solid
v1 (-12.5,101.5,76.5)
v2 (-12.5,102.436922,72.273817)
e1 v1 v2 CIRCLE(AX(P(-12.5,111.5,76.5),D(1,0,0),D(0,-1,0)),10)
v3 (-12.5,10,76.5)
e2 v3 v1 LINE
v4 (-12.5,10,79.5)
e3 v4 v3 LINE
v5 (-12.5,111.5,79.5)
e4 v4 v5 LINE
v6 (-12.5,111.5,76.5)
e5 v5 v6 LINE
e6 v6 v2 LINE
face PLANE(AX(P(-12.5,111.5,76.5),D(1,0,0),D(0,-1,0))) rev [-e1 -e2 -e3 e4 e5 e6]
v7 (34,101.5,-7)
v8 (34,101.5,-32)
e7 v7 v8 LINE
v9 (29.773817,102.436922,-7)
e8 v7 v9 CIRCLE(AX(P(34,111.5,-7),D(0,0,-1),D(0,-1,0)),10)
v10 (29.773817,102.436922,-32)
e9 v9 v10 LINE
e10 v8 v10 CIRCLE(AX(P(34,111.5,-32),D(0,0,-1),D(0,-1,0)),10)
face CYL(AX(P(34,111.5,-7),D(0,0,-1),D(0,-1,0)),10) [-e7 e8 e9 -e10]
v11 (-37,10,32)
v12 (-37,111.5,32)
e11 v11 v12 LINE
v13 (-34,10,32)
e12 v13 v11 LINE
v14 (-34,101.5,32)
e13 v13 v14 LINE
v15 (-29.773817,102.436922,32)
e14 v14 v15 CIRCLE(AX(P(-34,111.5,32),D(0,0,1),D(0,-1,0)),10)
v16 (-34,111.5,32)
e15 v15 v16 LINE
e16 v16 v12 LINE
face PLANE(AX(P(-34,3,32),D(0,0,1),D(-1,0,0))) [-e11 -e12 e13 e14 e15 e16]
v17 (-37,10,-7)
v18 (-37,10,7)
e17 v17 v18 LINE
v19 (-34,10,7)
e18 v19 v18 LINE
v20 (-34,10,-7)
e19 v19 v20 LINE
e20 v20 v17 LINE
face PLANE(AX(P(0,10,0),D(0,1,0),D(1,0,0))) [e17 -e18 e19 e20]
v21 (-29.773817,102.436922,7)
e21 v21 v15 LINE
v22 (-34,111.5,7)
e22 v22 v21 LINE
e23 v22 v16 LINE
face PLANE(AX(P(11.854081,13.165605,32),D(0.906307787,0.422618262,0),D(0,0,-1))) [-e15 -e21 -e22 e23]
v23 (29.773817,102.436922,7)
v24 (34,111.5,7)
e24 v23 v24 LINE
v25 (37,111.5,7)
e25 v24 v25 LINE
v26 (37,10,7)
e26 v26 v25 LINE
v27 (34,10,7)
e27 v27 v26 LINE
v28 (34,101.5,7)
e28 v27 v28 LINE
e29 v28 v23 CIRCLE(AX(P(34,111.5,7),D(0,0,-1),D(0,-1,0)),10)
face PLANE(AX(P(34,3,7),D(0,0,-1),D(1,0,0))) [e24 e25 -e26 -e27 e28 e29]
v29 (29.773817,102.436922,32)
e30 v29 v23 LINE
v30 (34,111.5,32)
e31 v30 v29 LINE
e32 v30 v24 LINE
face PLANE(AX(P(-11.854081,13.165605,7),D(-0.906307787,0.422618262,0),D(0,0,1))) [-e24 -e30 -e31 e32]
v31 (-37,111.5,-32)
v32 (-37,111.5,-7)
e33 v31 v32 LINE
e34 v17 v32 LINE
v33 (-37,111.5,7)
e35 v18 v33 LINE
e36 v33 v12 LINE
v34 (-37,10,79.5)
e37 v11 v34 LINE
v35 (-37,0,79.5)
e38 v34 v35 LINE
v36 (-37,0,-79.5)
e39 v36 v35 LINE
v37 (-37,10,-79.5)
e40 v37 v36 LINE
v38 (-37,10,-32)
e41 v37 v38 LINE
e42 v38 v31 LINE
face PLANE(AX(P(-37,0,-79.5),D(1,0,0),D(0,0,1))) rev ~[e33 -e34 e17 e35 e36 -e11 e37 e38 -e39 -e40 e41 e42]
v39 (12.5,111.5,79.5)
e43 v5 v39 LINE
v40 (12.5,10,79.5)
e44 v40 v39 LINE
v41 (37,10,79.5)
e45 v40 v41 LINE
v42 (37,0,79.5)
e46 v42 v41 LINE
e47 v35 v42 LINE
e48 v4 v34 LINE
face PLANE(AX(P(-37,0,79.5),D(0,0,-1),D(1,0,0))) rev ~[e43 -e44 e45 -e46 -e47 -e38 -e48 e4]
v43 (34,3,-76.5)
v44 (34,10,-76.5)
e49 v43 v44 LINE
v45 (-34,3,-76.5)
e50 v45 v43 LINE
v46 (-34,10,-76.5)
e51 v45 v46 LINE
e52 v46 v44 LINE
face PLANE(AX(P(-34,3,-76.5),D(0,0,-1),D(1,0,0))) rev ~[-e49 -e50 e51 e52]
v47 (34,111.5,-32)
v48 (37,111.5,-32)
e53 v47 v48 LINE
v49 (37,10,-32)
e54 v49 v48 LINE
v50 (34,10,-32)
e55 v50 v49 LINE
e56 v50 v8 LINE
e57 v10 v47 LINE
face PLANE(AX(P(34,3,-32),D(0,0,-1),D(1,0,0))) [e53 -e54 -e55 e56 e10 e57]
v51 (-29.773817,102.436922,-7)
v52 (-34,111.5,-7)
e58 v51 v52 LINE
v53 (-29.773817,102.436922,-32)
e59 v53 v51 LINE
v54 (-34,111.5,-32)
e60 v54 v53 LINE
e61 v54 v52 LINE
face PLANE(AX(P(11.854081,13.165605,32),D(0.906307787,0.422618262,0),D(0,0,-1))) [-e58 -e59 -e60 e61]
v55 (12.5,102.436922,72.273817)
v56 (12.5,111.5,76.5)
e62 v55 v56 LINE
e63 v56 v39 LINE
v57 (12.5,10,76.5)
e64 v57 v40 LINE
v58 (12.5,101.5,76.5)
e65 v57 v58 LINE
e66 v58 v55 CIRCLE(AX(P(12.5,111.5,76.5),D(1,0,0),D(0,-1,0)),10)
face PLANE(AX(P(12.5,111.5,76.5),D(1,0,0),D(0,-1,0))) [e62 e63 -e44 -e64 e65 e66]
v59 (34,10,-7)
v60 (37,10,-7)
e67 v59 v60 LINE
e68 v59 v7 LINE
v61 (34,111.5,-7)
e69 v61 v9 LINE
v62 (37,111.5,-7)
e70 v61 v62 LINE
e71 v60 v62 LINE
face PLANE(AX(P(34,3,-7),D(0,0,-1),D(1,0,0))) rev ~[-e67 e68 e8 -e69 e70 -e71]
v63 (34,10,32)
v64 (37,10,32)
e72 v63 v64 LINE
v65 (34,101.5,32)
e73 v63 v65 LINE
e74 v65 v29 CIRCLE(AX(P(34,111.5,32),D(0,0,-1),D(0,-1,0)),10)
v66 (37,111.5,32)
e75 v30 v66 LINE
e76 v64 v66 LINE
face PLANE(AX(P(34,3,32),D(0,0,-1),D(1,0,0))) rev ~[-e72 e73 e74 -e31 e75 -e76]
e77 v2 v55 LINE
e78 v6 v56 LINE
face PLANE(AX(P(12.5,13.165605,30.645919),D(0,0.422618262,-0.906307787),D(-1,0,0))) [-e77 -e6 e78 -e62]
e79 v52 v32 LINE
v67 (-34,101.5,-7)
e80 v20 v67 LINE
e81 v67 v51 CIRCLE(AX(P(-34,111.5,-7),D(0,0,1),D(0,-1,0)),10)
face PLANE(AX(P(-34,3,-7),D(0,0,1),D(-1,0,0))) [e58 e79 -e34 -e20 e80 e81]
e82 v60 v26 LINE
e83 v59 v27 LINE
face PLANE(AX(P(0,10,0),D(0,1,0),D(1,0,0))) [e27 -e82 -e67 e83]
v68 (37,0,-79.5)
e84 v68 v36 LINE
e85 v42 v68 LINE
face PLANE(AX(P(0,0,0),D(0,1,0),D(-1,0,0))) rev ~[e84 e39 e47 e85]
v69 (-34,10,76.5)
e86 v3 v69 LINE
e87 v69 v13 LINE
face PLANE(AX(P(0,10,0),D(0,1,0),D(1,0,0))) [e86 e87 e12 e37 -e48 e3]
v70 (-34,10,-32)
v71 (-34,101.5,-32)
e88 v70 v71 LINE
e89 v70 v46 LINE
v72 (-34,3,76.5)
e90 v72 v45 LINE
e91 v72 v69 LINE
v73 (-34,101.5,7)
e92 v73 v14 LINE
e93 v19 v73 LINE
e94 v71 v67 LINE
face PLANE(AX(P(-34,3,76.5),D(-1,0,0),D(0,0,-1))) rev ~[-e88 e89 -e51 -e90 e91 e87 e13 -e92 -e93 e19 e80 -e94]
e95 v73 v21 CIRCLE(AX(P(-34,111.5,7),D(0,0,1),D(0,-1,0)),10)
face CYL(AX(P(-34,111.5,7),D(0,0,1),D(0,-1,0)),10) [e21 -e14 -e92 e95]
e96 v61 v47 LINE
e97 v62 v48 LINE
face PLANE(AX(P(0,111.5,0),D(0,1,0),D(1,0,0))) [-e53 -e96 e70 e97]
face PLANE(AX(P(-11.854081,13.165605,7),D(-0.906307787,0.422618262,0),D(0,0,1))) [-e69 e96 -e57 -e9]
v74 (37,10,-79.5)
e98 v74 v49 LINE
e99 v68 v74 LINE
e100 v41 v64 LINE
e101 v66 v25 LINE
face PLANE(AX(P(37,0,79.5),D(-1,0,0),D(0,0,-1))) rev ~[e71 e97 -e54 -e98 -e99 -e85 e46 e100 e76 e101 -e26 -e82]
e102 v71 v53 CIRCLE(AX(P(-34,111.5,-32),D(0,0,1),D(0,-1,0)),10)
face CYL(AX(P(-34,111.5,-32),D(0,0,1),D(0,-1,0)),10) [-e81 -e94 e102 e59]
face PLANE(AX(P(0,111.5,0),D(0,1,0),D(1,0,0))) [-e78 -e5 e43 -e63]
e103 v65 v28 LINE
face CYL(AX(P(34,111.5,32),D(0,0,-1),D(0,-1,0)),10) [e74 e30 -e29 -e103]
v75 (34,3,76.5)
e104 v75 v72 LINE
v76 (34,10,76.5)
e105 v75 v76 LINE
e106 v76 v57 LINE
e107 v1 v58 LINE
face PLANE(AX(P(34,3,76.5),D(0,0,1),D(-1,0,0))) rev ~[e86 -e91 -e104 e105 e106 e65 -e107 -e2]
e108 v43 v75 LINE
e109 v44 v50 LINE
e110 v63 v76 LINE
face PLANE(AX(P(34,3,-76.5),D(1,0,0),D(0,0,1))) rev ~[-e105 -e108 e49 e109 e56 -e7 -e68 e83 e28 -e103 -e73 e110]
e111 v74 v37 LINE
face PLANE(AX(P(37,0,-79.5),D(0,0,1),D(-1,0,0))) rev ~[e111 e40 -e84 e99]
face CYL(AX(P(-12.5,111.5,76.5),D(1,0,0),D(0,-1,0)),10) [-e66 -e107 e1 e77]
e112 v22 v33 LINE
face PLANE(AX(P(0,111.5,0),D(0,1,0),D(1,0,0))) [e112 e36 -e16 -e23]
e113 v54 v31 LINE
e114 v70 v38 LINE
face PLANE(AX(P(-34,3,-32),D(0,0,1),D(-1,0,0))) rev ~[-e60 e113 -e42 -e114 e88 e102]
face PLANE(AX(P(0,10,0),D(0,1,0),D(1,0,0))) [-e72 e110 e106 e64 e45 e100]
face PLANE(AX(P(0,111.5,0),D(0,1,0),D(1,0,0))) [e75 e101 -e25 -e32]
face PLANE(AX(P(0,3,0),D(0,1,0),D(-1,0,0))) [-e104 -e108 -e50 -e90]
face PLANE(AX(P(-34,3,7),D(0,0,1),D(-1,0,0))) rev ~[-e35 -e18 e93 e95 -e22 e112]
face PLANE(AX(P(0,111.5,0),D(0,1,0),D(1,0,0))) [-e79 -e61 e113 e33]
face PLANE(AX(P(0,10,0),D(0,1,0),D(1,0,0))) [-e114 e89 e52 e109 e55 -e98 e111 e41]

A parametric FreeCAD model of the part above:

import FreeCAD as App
import Part
import Sketcher
from FreeCAD import Vector

doc = App.newDocument("Part")
body = doc.addObject("PartDesign::Body", "Body")

# Sketch on XZ plane
sketch1 = body.newObject("Sketcher::SketchObject", "Sketch")
sketch1.AttachmentSupport = (doc.getObject("XZ_Plane"), [""])
sketch1.MapMode = "FlatFace"
sketch1.addGeometry([
    Part.LineSegment(Vector(37, 80, 0), Vector(37, -80, 0)),
    Part.LineSegment(Vector(37, -80, 0), Vector(-37, -80, 0)),
    Part.LineSegment(Vector(-37, -80, 0), Vector(-37, 80, 0)),
    Part.LineSegment(Vector(-37, 80, 0), Vector(37, 80, 0)),
], False)
sketch1.addConstraint([
    Sketcher.Constraint("Coincident", 0, 2, 1, 1),
    Sketcher.Constraint("Coincident", 1, 2, 2, 1),
    Sketcher.Constraint("Coincident", 2, 2, 3, 1),
    Sketcher.Constraint("Coincident", 3, 2, 0, 1),
    Sketcher.Constraint("Vertical", 0),
    Sketcher.Constraint("Horizontal", 1),
    Sketcher.Constraint("Vertical", 2),
    Sketcher.Constraint("Horizontal", 3),
    Sketcher.Constraint("Symmetric", 0, 2, 2, 2, -1, 1),
    Sketcher.Constraint("DistanceX", 1, 2, 1, 1, 74.0),
    Sketcher.Constraint("DistanceY", 0, 2, 0, 1, 159.0),
])
pad1 = body.newObject("PartDesign::Pad", "Pad")
pad1.Profile = sketch1
pad1.Length = 3
pad1.Reversed = True

# Sketch on XZ plane
sketch2 = body.newObject("Sketcher::SketchObject", "Sketch001")
sketch2.AttachmentSupport = (doc.getObject("XZ_Plane"), [""])
sketch2.MapMode = "FlatFace"
sketch2.AttachmentOffset = App.Placement(Vector(0, 0, -3), App.Rotation())
sketch2.addGeometry([
    Part.LineSegment(Vector(37, -32, 0), Vector(34, -32, 0)),  # 0
    Part.LineSegment(Vector(34, -32, 0), Vector(34, -7, 0)),  # 1
    Part.LineSegment(Vector(34, -7, 0), Vector(37, -7, 0)),  # 2
    Part.LineSegment(Vector(37, -7, 0), Vector(37, -32, 0)),  # 3
    Part.LineSegment(Vector(-34, -7, 0), Vector(-34, -32, 0)),  # 4
    Part.LineSegment(Vector(-34, -32, 0), Vector(-37, -32, 0)),  # 5
    Part.LineSegment(Vector(-37, -32, 0), Vector(-37, -7, 0)),  # 6
    Part.LineSegment(Vector(-37, -7, 0), Vector(-34, -7, 0)),  # 7
    Part.LineSegment(Vector(37, 7, 0), Vector(34, 7, 0)),  # 8
    Part.LineSegment(Vector(34, 7, 0), Vector(34, 32, 0)),  # 9
    Part.LineSegment(Vector(34, 32, 0), Vector(37, 32, 0)),  # 10
    Part.LineSegment(Vector(37, 32, 0), Vector(37, 7, 0)),  # 11
    Part.LineSegment(Vector(-34, 32, 0), Vector(-34, 7, 0)),  # 12
    Part.LineSegment(Vector(-34, 7, 0), Vector(-37, 7, 0)),  # 13
    Part.LineSegment(Vector(-37, 7, 0), Vector(-37, 32, 0)),  # 14
    Part.LineSegment(Vector(-37, 32, 0), Vector(-34, 32, 0)),  # 15
    Part.LineSegment(Vector(12.5, 79.5, 0), Vector(12.5, 76.5, 0)),  # 16
    Part.LineSegment(Vector(12.5, 76.5, 0), Vector(-12.5, 76.5, 0)),  # 17
    Part.LineSegment(Vector(-12.5, 76.5, 0), Vector(-12.5, 79.5, 0)),  # 18
    Part.LineSegment(Vector(-12.5, 79.5, 0), Vector(12.5, 79.5, 0)),  # 19
], False)
sketch2.addConstraint([
    Sketcher.Constraint("Coincident", 0, 2, 1, 1),
    Sketcher.Constraint("Coincident", 1, 2, 2, 1),
    Sketcher.Constraint("Coincident", 2, 2, 3, 1),
    Sketcher.Constraint("Coincident", 3, 2, 0, 1),
    Sketcher.Constraint("Coincident", 4, 2, 5, 1),
    Sketcher.Constraint("Coincident", 5, 2, 6, 1),
    Sketcher.Constraint("Coincident", 6, 2, 7, 1),
    Sketcher.Constraint("Coincident", 7, 2, 4, 1),
    Sketcher.Constraint("Coincident", 8, 2, 9, 1),
    Sketcher.Constraint("Coincident", 9, 2, 10, 1),
    Sketcher.Constraint("Coincident", 10, 2, 11, 1),
    Sketcher.Constraint("Coincident", 11, 2, 8, 1),
    Sketcher.Constraint("Coincident", 12, 2, 13, 1),
    Sketcher.Constraint("Coincident", 13, 2, 14, 1),
    Sketcher.Constraint("Coincident", 14, 2, 15, 1),
    Sketcher.Constraint("Coincident", 15, 2, 12, 1),
    Sketcher.Constraint("Coincident", 16, 2, 17, 1),
    Sketcher.Constraint("Coincident", 17, 2, 18, 1),
    Sketcher.Constraint("Coincident", 18, 2, 19, 1),
    Sketcher.Constraint("Coincident", 19, 2, 16, 1),
    Sketcher.Constraint("Horizontal", 0),
    Sketcher.Constraint("Vertical", 1),
    Sketcher.Constraint("Horizontal", 2),
    Sketcher.Constraint("Vertical", 3),
    Sketcher.Constraint("Vertical", 4),
    Sketcher.Constraint("Horizontal", 5),
    Sketcher.Constraint("Vertical", 6),
    Sketcher.Constraint("Horizontal", 7),
    Sketcher.Constraint("Horizontal", 8),
    Sketcher.Constraint("Vertical", 9),
    Sketcher.Constraint("Horizontal", 10),
    Sketcher.Constraint("Vertical", 11),
    Sketcher.Constraint("Vertical", 12),
    Sketcher.Constraint("Horizontal", 13),
    Sketcher.Constraint("Vertical", 14),
    Sketcher.Constraint("Horizontal", 15),
    Sketcher.Constraint("Vertical", 16),
    Sketcher.Constraint("Horizontal", 17),
    Sketcher.Constraint("Vertical", 18),
    Sketcher.Constraint("Horizontal", 19),
    Sketcher.Constraint("Symmetric", 7, 2, 8, 2, -1, 1),
    Sketcher.Constraint("Symmetric", 5, 2, 10, 2, -1, 1),
    Sketcher.Constraint("Symmetric", 1, 2, 12, 2, -1, 1),
    Sketcher.Constraint("Symmetric", 3, 2, 14, 2, -1, 1),
    Sketcher.Constraint("Symmetric", 0, 2, 4, 2, -2),
    Sketcher.Constraint("Symmetric", 2, 2, 6, 2, -2),
    Sketcher.Constraint("Equal", 19, 1),
    Sketcher.Constraint("Equal", 15, 16),
    Sketcher.Constraint("DistanceX", 0, 2, 0, 1, 3.0),
    Sketcher.Constraint("DistanceY", 0, 2, -1, 1, 32.0),
    Sketcher.Constraint("DistanceY", 1, 2, -1, 1, 7.0),
    Sketcher.Constraint("DistanceX", -1, 1, 16, 2, 12.5),
    Sketcher.Constraint("DistanceX", -1, 1, 0, 2, 34.0),
    Sketcher.Constraint("DistanceY", -1, 1, 16, 2, 76.5),
])
pad2 = body.newObject("PartDesign::Pad", "Pad001")
pad2.Profile = sketch2
pad2.Length = 108.5
pad2.Reversed = True

# Sketch on YZ plane
sketch3 = body.newObject("Sketcher::SketchObject", "Sketch002")
sketch3.AttachmentSupport = (doc.getObject("YZ_Plane"), [""])
sketch3.MapMode = "FlatFace"
sketch3.AttachmentOffset = App.Placement(Vector(0, 0, 34), App.Rotation())
sketch3.addGeometry([
    Part.LineSegment(Vector(102, -7, 0), Vector(112, -7, 0)),  # 0
    Part.LineSegment(Vector(112, -7, 0), Vector(112, -32, 0)),  # 1
    Part.LineSegment(Vector(112, -32, 0), Vector(102, -32, 0)),  # 2
    Part.LineSegment(Vector(102, -32, 0), Vector(102, -7, 0)),  # 3
    Part.LineSegment(Vector(112, 32, 0), Vector(112, 7, 0)),  # 4
    Part.LineSegment(Vector(112, 7, 0), Vector(102, 7, 0)),  # 5
    Part.LineSegment(Vector(102, 7, 0), Vector(102, 32, 0)),  # 6
    Part.LineSegment(Vector(102, 32, 0), Vector(112, 32, 0)),  # 7
], False)
sketch3.addGeometry(Part.LineSegment(Vector(112, 32, 0), Vector(112, -32, 0)), True)  # axis
sketch3.addConstraint([
    Sketcher.Constraint("Coincident", 0, 2, 1, 1),
    Sketcher.Constraint("Coincident", 1, 2, 2, 1),
    Sketcher.Constraint("Coincident", 2, 2, 3, 1),
    Sketcher.Constraint("Coincident", 3, 2, 0, 1),
    Sketcher.Constraint("Coincident", 4, 2, 5, 1),
    Sketcher.Constraint("Coincident", 5, 2, 6, 1),
    Sketcher.Constraint("Coincident", 6, 2, 7, 1),
    Sketcher.Constraint("Coincident", 7, 2, 4, 1),
    Sketcher.Constraint("Horizontal", 0),
    Sketcher.Constraint("Vertical", 1),
    Sketcher.Constraint("Horizontal", 2),
    Sketcher.Constraint("Vertical", 3),
    Sketcher.Constraint("Vertical", 4),
    Sketcher.Constraint("Horizontal", 5),
    Sketcher.Constraint("Vertical", 6),
    Sketcher.Constraint("Horizontal", 7),
    Sketcher.Constraint("Vertical", 8),
    Sketcher.Constraint("Coincident", 8, 1, 7, 2),
    Sketcher.Constraint("Coincident", 8, 2, 1, 2),
    Sketcher.Constraint("Symmetric", 3, 2, 5, 2, -1),
    Sketcher.Constraint("Equal", 3, 4),
    Sketcher.Constraint("DistanceX", 0, 1, 0, 2, 10.0),
    Sketcher.Constraint("DistanceY", 1, 2, 1, 1, 25.0),
    Sketcher.Constraint("DistanceY", 8, 2, 8, 1, 64.0),
    Sketcher.Constraint("DistanceX", -1, 1, 0, 2, 111.5),
])
revolution = body.newObject("PartDesign::Revolution", "Revolution")
revolution.Profile = sketch3
revolution.ReferenceAxis = (sketch3, ["Axis0"])
revolution.Angle = 25

# Sketch on XY plane
sketch4 = body.newObject("Sketcher::SketchObject", "Sketch003")
sketch4.AttachmentSupport = (doc.getObject("XY_Plane"), [""])
sketch4.MapMode = "FlatFace"
sketch4.AttachmentOffset = App.Placement(Vector(0, 0, 76.5), App.Rotation())
sketch4.addGeometry([
    Part.LineSegment(Vector(-12, 112, 0), Vector(12, 112, 0)),
    Part.LineSegment(Vector(12, 112, 0), Vector(12, 102, 0)),
    Part.LineSegment(Vector(12, 102, 0), Vector(-12, 102, 0)),
    Part.LineSegment(Vector(-12, 102, 0), Vector(-12, 112, 0)),
], False)
sketch4.addGeometry(Part.LineSegment(Vector(-12, 112, 0), Vector(12, 112, 0)), True)  # axis
sketch4.addConstraint([
    Sketcher.Constraint("Coincident", 0, 2, 1, 1),
    Sketcher.Constraint("Coincident", 1, 2, 2, 1),
    Sketcher.Constraint("Coincident", 2, 2, 3, 1),
    Sketcher.Constraint("Coincident", 3, 2, 0, 1),
    Sketcher.Constraint("Horizontal", 0),
    Sketcher.Constraint("Vertical", 1),
    Sketcher.Constraint("Horizontal", 2),
    Sketcher.Constraint("Vertical", 3),
    Sketcher.Constraint("Horizontal", 4),
    Sketcher.Constraint("Coincident", 4, 1, 3, 2),
    Sketcher.Constraint("Vertical", 1, 2, 4, 2),
    Sketcher.Constraint("DistanceX", 0, 1, 0, 2, 25.0),
    Sketcher.Constraint("DistanceY", 1, 2, 1, 1, 10.0),
    Sketcher.Constraint("DistanceX", -1, 1, 0, 2, 12.5),
    Sketcher.Constraint("DistanceY", -1, 1, 0, 2, 111.5),
])
revolution2 = body.newObject("PartDesign::Revolution", "Revolution001")
revolution2.Profile = sketch4
revolution2.ReferenceAxis = (sketch4, ["Axis0"])
revolution2.Angle = 25

# Sketch on YZ plane
sketch5 = body.newObject("Sketcher::SketchObject", "Sketch004")
sketch5.AttachmentSupport = (doc.getObject("YZ_Plane"), [""])
sketch5.MapMode = "FlatFace"
sketch5.AttachmentOffset = App.Placement(Vector(0, 0, -34), App.Rotation())
sketch5.addGeometry([
    Part.LineSegment(Vector(102, 7, 0), Vector(112, 7, 0)),  # 0
    Part.LineSegment(Vector(112, 7, 0), Vector(112, 32, 0)),  # 1
    Part.LineSegment(Vector(112, 32, 0), Vector(102, 32, 0)),  # 2
    Part.LineSegment(Vector(102, 32, 0), Vector(102, 7, 0)),  # 3
    Part.LineSegment(Vector(112, -7, 0), Vector(102, -7, 0)),  # 4
    Part.LineSegment(Vector(102, -7, 0), Vector(102, -32, 0)),  # 5
    Part.LineSegment(Vector(102, -32, 0), Vector(112, -32, 0)),  # 6
    Part.LineSegment(Vector(112, -32, 0), Vector(112, -7, 0)),  # 7
], False)
sketch5.addGeometry(Part.LineSegment(Vector(112, -32, 0), Vector(112, 32, 0)), True)  # axis
sketch5.addConstraint([
    Sketcher.Constraint("Coincident", 0, 2, 1, 1),
    Sketcher.Constraint("Coincident", 1, 2, 2, 1),
    Sketcher.Constraint("Coincident", 2, 2, 3, 1),
    Sketcher.Constraint("Coincident", 3, 2, 0, 1),
    Sketcher.Constraint("Coincident", 4, 2, 5, 1),
    Sketcher.Constraint("Coincident", 5, 2, 6, 1),
    Sketcher.Constraint("Coincident", 6, 2, 7, 1),
    Sketcher.Constraint("Coincident", 7, 2, 4, 1),
    Sketcher.Constraint("Horizontal", 0),
    Sketcher.Constraint("Vertical", 1),
    Sketcher.Constraint("Horizontal", 2),
    Sketcher.Constraint("Vertical", 3),
    Sketcher.Constraint("Horizontal", 4),
    Sketcher.Constraint("Vertical", 5),
    Sketcher.Constraint("Horizontal", 6),
    Sketcher.Constraint("Vertical", 7),
    Sketcher.Constraint("Vertical", 8),
    Sketcher.Constraint("Coincident", 8, 1, 6, 2),
    Sketcher.Constraint("Coincident", 8, 2, 1, 2),
    Sketcher.Constraint("Symmetric", 3, 2, 4, 2, -1),
    Sketcher.Constraint("Equal", 3, 5),
    Sketcher.Constraint("DistanceX", 0, 1, 0, 2, 10.0),
    Sketcher.Constraint("DistanceY", 1, 1, 1, 2, 25.0),
    Sketcher.Constraint("DistanceY", 8, 1, 8, 2, 64.0),
    Sketcher.Constraint("DistanceX", -1, 1, 0, 2, 111.5),
])
revolution3 = body.newObject("PartDesign::Revolution", "Revolution002")
revolution3.Profile = sketch5
revolution3.ReferenceAxis = (sketch5, ["Axis0"])
revolution3.Angle = 25

# Sketch on XZ plane
sketch6 = body.newObject("Sketcher::SketchObject", "Sketch005")
sketch6.AttachmentSupport = (doc.getObject("XZ_Plane"), [""])
sketch6.MapMode = "FlatFace"
sketch6.AttachmentOffset = App.Placement(Vector(0, 0, -3), App.Rotation())
sketch6.addGeometry([
    Part.LineSegment(Vector(-37, 80, 0), Vector(37, 80, 0)),  # 0
    Part.LineSegment(Vector(37, 80, 0), Vector(37, -80, 0)),  # 1
    Part.LineSegment(Vector(37, -80, 0), Vector(-37, -80, 0)),  # 2
    Part.LineSegment(Vector(-37, -80, 0), Vector(-37, 80, 0)),  # 3
    Part.LineSegment(Vector(34, -76, 0), Vector(34, 76, 0)),  # 4
    Part.LineSegment(Vector(34, 76, 0), Vector(-34, 76, 0)),  # 5
    Part.LineSegment(Vector(-34, 76, 0), Vector(-34, -76, 0)),  # 6
    Part.LineSegment(Vector(-34, -76, 0), Vector(34, -76, 0)),  # 7
], False)
sketch6.addConstraint([
    Sketcher.Constraint("Coincident", 0, 2, 1, 1),
    Sketcher.Constraint("Coincident", 1, 2, 2, 1),
    Sketcher.Constraint("Coincident", 2, 2, 3, 1),
    Sketcher.Constraint("Coincident", 3, 2, 0, 1),
    Sketcher.Constraint("Coincident", 4, 2, 5, 1),
    Sketcher.Constraint("Coincident", 5, 2, 6, 1),
    Sketcher.Constraint("Coincident", 6, 2, 7, 1),
    Sketcher.Constraint("Coincident", 7, 2, 4, 1),
    Sketcher.Constraint("Horizontal", 0),
    Sketcher.Constraint("Vertical", 1),
    Sketcher.Constraint("Horizontal", 2),
    Sketcher.Constraint("Vertical", 3),
    Sketcher.Constraint("Vertical", 4),
    Sketcher.Constraint("Horizontal", 5),
    Sketcher.Constraint("Vertical", 6),
    Sketcher.Constraint("Horizontal", 7),
    Sketcher.Constraint("Symmetric", 0, 2, 2, 2, -1, 1),
    Sketcher.Constraint("Symmetric", 4, 2, 6, 2, -1, 1),
    Sketcher.Constraint("DistanceX", 4, 2, 0, 2, 3.0),
    Sketcher.Constraint("DistanceY", 4, 2, 0, 2, 3.0),
    Sketcher.Constraint("DistanceX", 0, 1, 0, 2, 74.0),
    Sketcher.Constraint("DistanceY", 1, 2, 1, 1, 159.0),
])
pad3 = body.newObject("PartDesign::Pad", "Pad002")
pad3.Profile = sketch6
pad3.Length = 7
pad3.Reversed = True

doc.recompute()
